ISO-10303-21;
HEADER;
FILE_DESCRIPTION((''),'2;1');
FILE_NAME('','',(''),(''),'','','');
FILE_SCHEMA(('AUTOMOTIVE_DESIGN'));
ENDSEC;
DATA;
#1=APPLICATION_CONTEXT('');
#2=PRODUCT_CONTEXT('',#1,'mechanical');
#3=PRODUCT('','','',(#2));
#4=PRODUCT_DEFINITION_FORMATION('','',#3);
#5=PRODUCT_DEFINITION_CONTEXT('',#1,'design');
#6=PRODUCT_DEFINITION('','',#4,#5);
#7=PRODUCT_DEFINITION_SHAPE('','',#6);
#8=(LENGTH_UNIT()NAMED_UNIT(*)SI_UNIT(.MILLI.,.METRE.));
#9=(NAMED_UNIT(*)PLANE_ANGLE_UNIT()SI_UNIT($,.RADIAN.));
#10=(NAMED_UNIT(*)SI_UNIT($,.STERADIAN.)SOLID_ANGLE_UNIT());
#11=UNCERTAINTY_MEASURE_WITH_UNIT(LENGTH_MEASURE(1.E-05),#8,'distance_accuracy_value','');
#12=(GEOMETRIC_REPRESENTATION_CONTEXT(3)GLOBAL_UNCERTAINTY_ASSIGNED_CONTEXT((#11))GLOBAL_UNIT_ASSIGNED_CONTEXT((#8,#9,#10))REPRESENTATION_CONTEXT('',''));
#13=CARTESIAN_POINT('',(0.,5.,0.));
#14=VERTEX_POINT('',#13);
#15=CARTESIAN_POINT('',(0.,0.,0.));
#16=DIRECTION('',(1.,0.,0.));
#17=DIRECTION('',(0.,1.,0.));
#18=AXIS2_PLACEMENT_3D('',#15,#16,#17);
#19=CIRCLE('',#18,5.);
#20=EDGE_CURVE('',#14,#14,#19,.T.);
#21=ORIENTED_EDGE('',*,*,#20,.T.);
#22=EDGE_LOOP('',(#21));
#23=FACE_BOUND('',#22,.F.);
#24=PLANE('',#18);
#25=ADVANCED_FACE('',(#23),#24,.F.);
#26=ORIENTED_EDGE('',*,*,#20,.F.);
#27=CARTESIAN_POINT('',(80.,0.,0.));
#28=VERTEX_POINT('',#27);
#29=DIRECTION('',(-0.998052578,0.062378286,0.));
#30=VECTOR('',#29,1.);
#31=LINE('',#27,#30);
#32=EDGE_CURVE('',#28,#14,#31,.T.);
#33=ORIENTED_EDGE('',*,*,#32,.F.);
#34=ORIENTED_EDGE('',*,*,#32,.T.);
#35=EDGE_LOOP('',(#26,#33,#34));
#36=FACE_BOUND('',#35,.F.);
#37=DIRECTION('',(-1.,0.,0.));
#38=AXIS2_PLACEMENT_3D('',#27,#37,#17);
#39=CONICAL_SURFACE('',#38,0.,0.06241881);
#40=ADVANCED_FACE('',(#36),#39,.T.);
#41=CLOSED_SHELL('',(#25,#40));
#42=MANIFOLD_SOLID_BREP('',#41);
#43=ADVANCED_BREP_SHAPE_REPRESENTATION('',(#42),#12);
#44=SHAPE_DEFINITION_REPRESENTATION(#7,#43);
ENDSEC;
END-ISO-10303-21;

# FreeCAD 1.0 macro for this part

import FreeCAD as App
import Part
import Sketcher

V = App.Vector


def add_polygon(sketch, points):
    """Adds a closed chain of lines whose ends are joined by coincident constraints."""
    first, n = sketch.GeometryCount, len(points)
    for a, b in zip(points, points[1:] + points[:1]):
        sketch.addGeometry(Part.LineSegment(App.Vector(*a, 0), App.Vector(*b, 0)), False)
    for i in range(n):
        sketch.addConstraint(Sketcher.Constraint("Coincident", first + i, 2, first + (i + 1) % n, 1))

doc = App.newDocument("Part")
body = doc.addObject("PartDesign::Body", "Body")

sketch1 = body.newObject("Sketcher::SketchObject", "Sketch")
sketch1.AttachmentSupport = (doc.getObject("XY_Plane"), [""])
sketch1.MapMode = "FlatFace"
add_polygon(sketch1, [(0, 5), (0, 0), (80, 0)])
sketch1.addConstraint(Sketcher.Constraint("Vertical", 0))
sketch1.addConstraint(Sketcher.Constraint("Horizontal", 1))
sketch1.addConstraint(Sketcher.Constraint("Coincident", 0, 2, -1, 1))
sketch1.addConstraint(Sketcher.Constraint("DistanceX", 1, 1, 1, 2, 80.0))
sketch1.addConstraint(Sketcher.Constraint("DistanceY", 0, 2, 0, 1, 5.0))
revolution = body.newObject("PartDesign::Revolution", "Revolution")
revolution.Profile = sketch1
revolution.ReferenceAxis = (sketch1, ["H_Axis"])
revolution.Angle = 360

doc.recompute()
